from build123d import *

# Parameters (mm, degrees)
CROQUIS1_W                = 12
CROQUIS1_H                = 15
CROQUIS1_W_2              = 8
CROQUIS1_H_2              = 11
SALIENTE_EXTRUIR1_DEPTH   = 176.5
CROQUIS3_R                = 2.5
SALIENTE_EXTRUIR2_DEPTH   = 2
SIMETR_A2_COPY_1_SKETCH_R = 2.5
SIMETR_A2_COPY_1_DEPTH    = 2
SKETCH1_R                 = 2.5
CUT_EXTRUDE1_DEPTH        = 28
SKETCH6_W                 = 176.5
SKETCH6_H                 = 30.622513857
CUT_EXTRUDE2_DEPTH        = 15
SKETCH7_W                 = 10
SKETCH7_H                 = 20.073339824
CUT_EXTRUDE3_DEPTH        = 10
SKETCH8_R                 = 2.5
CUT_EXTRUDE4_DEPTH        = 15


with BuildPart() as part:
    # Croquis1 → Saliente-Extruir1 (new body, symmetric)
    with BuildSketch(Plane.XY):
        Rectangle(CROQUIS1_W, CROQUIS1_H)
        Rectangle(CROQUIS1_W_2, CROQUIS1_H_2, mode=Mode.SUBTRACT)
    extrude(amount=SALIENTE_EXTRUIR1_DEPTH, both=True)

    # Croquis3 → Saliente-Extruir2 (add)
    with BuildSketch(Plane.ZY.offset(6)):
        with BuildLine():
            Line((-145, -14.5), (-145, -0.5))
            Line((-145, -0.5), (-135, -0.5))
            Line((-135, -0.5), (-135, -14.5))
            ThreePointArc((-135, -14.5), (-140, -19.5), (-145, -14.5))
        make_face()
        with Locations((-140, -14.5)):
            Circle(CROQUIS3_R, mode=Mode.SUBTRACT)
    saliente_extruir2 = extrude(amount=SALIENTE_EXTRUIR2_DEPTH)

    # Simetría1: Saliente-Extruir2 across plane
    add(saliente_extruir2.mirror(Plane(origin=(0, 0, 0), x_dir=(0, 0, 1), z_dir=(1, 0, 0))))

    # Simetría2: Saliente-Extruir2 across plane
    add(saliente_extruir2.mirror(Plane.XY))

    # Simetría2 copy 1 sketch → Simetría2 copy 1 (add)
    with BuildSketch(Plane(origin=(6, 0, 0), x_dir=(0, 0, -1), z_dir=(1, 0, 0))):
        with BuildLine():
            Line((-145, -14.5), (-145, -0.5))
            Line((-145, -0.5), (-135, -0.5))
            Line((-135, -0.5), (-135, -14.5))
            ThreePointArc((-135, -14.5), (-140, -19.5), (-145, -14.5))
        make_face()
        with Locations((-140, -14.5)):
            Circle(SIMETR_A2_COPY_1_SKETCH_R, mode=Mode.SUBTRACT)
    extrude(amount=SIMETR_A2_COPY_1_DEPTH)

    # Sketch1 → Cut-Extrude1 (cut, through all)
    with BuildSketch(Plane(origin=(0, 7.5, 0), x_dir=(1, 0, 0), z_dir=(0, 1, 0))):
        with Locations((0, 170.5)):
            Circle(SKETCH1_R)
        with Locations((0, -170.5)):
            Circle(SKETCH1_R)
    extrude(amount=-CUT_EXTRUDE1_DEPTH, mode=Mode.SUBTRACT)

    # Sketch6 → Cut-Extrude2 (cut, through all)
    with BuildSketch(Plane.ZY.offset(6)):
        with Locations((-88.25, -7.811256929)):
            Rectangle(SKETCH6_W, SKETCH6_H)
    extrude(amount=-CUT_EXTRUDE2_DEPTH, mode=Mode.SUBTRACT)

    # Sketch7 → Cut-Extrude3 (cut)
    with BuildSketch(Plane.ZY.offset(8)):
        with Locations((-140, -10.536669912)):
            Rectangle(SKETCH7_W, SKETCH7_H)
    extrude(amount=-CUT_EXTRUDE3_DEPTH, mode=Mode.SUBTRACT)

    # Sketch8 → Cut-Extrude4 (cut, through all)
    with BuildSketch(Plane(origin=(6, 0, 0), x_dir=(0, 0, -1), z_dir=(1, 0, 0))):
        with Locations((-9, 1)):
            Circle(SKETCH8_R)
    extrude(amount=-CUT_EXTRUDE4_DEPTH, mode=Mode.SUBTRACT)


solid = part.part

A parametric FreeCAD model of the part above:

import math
import FreeCAD as App
import Part
import Sketcher

V = App.Vector


def add_polygon(sketch, points):
    """Adds a closed chain of lines whose ends are joined by coincident constraints."""
    first, n = sketch.GeometryCount, len(points)
    for a, b in zip(points, points[1:] + points[:1]):
        sketch.addGeometry(Part.LineSegment(App.Vector(*a, 0), App.Vector(*b, 0)), False)
    for i in range(n):
        sketch.addConstraint(Sketcher.Constraint("Coincident", first + i, 2, first + (i + 1) % n, 1))

doc = App.newDocument("Part")
params = doc.addObject("Spreadsheet::Sheet", "Params")
for row, (alias, value) in enumerate([
    ("sketch1_width", "12 mm"),
    ("sketch1_width2", "8 mm"),
    ("sketch1_height", "15 mm"),
    ("sketch1_height2", "11 mm"),
    ("pad1_length", "353 mm"),
    ("sketch2_diameter", "5 mm"),
    ("sketch2_radius", "5 mm"),
    ("sketch2_width", "14 mm"),
    ("pad2_length", "2 mm"),
    ("sketch3_diameter", "5 mm"),
    ("sketch3_radius", "5 mm"),
    ("sketch3_width", "14 mm"),
    ("pad3_length", "2 mm"),
    ("sketch4_diameter", "5 mm"),
    ("sketch5_height", "176.5 mm"),
    ("sketch6_height", "10 mm"),
    ("pocket3_length", "10 mm"),
    ("sketch7_diameter", "5 mm"),
], start=1):
    params.set(f"A{row}", alias)
    params.set(f"B{row}", "=" + value)
    params.setAlias(f"B{row}", alias)

body = doc.addObject("PartDesign::Body", "Body")
body.AllowCompound = True

# Sketch on XY plane
sketch1 = body.newObject("Sketcher::SketchObject", "Sketch")
sketch1.AttachmentSupport = (doc.getObject("XY_Plane"), [""])
sketch1.MapMode = "FlatFace"
add_polygon(sketch1, [(-6, 8), (-6, -8), (6, -8), (6, 8)])  # lines 0-3
add_polygon(sketch1, [(4, -6), (-4, -6), (-4, 6), (4, 6)])  # lines 4-7
sketch1.addConstraint([
    Sketcher.Constraint("Vertical", 0),
    Sketcher.Constraint("Horizontal", 1),
    Sketcher.Constraint("Vertical", 2),
    Sketcher.Constraint("Horizontal", 3),
    Sketcher.Constraint("Horizontal", 4),
    Sketcher.Constraint("Vertical", 5),
    Sketcher.Constraint("Horizontal", 6),
    Sketcher.Constraint("Vertical", 7),
    Sketcher.Constraint("Symmetric", 0, 2, 2, 2, -1, 1),
    Sketcher.Constraint("Symmetric", 4, 2, 6, 2, -1, 1),
    Sketcher.Constraint("DistanceX", 1, 1, 1, 2, 12.0),
    Sketcher.Constraint("DistanceX", 4, 2, 4, 1, 8.0),
    Sketcher.Constraint("DistanceY", 0, 2, 0, 1, 15.0),
    Sketcher.Constraint("DistanceY", 5, 1, 5, 2, 11.0),
])
sketch1.setExpression("Constraints[18]", "Params.sketch1_width")
sketch1.setExpression("Constraints[19]", "Params.sketch1_width2")
sketch1.setExpression("Constraints[20]", "Params.sketch1_height")
sketch1.setExpression("Constraints[21]", "Params.sketch1_height2")
pad1 = body.newObject("PartDesign::Pad", "Pad")
pad1.Profile = sketch1
pad1.setExpression("Length", "Params.pad1_length")
pad1.Midplane = True

# Sketch on YZ plane
sketch2 = body.newObject("Sketcher::SketchObject", "Sketch001")
sketch2.AttachmentSupport = (doc.getObject("YZ_Plane"), [""])
sketch2.MapMode = "FlatFace"
sketch2.AttachmentOffset = App.Placement(V(0, 0, -6), App.Rotation())
sketch2.addGeometry([
    Part.LineSegment(V(-0.5, -145, 0), V(-14.5, -145, 0)),  # 0
    Part.ArcOfCircle(Part.Circle(V(-14.5, -140, 0), V(0, 0, 1), 5), math.radians(90), math.radians(270)),  # 1
    Part.LineSegment(V(-14.5, -135, 0), V(-0.5, -135, 0)),  # 2
    Part.LineSegment(V(-0.5, -135, 0), V(-0.5, -145, 0)),  # 3
    Part.Circle(V(-14.5, -140, 0), V(0, 0, 1), 2.5),  # 4
], False)
sketch2.addConstraint([
    Sketcher.Constraint("Tangent", 0, 2, 1, 2),
    Sketcher.Constraint("Tangent", 1, 1, 2, 1),
    Sketcher.Constraint("Coincident", 2, 2, 3, 1),
    Sketcher.Constraint("Coincident", 3, 2, 0, 1),
    Sketcher.Constraint("Horizontal", 0),
    Sketcher.Constraint("Horizontal", 2),
    Sketcher.Constraint("Vertical", 3),
    Sketcher.Constraint("Coincident", 4, 3, 1, 3),
    Sketcher.Constraint("Diameter", 4, 5.0),
    Sketcher.Constraint("Radius", 1, 5.0),
    Sketcher.Constraint("DistanceX", 0, 2, 0, 1, 14.0),
    Sketcher.Constraint("DistanceY", 1, 3, -1, 1, 140.0),
    Sketcher.Constraint("DistanceX", 1, 3, -1, 1, 14.5),
])
sketch2.setExpression("Constraints[8]", "Params.sketch2_diameter")
sketch2.setExpression("Constraints[9]", "Params.sketch2_radius")
sketch2.setExpression("Constraints[10]", "Params.sketch2_width")
pad2 = body.newObject("PartDesign::Pad", "Pad001")
pad2.Profile = sketch2
pad2.setExpression("Length", "Params.pad2_length")
pad2.Reversed = True
doc.recompute()

mirrored = body.newObject("PartDesign::Mirrored", "Mirrored")
mirrored.Originals = [pad2]
mirrored.MirrorPlane = (doc.getObject("YZ_Plane"), [""])
body.Tip = mirrored
doc.recompute()

mirrored2 = body.newObject("PartDesign::Mirrored", "Mirrored001")
mirrored2.Originals = [pad2]
mirrored2.MirrorPlane = (doc.getObject("XY_Plane"), [""])
body.Tip = mirrored2

# Sketch on YZ plane
sketch3 = body.newObject("Sketcher::SketchObject", "Sketch002")
sketch3.AttachmentSupport = (doc.getObject("YZ_Plane"), [""])
sketch3.MapMode = "FlatFace"
sketch3.AttachmentOffset = App.Placement(V(0, 0, 6), App.Rotation())
sketch3.addGeometry([
    Part.LineSegment(V(-0.5, 145, 0), V(-14.5, 145, 0)),  # 0
    Part.ArcOfCircle(Part.Circle(V(-14.5, 140, 0), V(0, 0, 1), 5), math.radians(90), math.radians(270)),  # 1
    Part.LineSegment(V(-14.5, 135, 0), V(-0.5, 135, 0)),  # 2
    Part.LineSegment(V(-0.5, 135, 0), V(-0.5, 145, 0)),  # 3
    Part.Circle(V(-14.5, 140, 0), V(0, 0, 1), 2.5),  # 4
], False)
sketch3.addConstraint([
    Sketcher.Constraint("Tangent", 0, 2, 1, 1),
    Sketcher.Constraint("Tangent", 1, 2, 2, 1),
    Sketcher.Constraint("Coincident", 2, 2, 3, 1),
    Sketcher.Constraint("Coincident", 3, 2, 0, 1),
    Sketcher.Constraint("Horizontal", 0),
    Sketcher.Constraint("Horizontal", 2),
    Sketcher.Constraint("Vertical", 3),
    Sketcher.Constraint("Coincident", 4, 3, 1, 3),
    Sketcher.Constraint("Diameter", 4, 5.0),
    Sketcher.Constraint("Radius", 1, 5.0),
    Sketcher.Constraint("DistanceX", 0, 2, 0, 1, 14.0),
    Sketcher.Constraint("DistanceY", -1, 1, 1, 3, 140.0),
    Sketcher.Constraint("DistanceX", 1, 3, -1, 1, 14.5),
])
sketch3.setExpression("Constraints[8]", "Params.sketch3_diameter")
sketch3.setExpression("Constraints[9]", "Params.sketch3_radius")
sketch3.setExpression("Constraints[10]", "Params.sketch3_width")
pad3 = body.newObject("PartDesign::Pad", "Pad002")
pad3.Profile = sketch3
pad3.setExpression("Length", "Params.pad3_length")

# Sketch on XZ plane
sketch4 = body.newObject("Sketcher::SketchObject", "Sketch003")
sketch4.AttachmentSupport = (doc.getObject("XZ_Plane"), [""])
sketch4.MapMode = "FlatFace"
sketch4.AttachmentOffset = App.Placement(V(0, 0, -7.5), App.Rotation())
sketch4.addGeometry([
    Part.Circle(V(0, -170.5, 0), V(0, 0, 1), 2.5),
    Part.Circle(V(0, 170.5, 0), V(0, 0, 1), 2.5),
], False)
sketch4.addConstraint([
    Sketcher.Constraint("Equal", 0, 1),
    Sketcher.Constraint("Symmetric", 0, 3, 1, 3, -1, 1),
    Sketcher.Constraint("PointOnObject", 0, 3, -2),
    Sketcher.Constraint("Diameter", 0, 5.0),
    Sketcher.Constraint("DistanceY", 0, 3, 1, 3, 341.0),
])
sketch4.setExpression("Constraints[3]", "Params.sketch4_diameter")
pocket1 = body.newObject("PartDesign::Pocket", "Pocket")
pocket1.Profile = sketch4
pocket1.Type = "ThroughAll"
pocket1.Reversed = True

# Sketch on YZ plane
sketch5 = body.newObject("Sketcher::SketchObject", "Sketch004")
sketch5.AttachmentSupport = (doc.getObject("YZ_Plane"), [""])
sketch5.MapMode = "FlatFace"
sketch5.AttachmentOffset = App.Placement(V(0, 0, -6), App.Rotation())
add_polygon(sketch5, [(8, -176), (-23, -176), (-23, 0), (8, 0)])  # lines 0-3
sketch5.addConstraint([
    Sketcher.Constraint("Horizontal", 0),
    Sketcher.Constraint("Vertical", 1),
    Sketcher.Constraint("Horizontal", 2),
    Sketcher.Constraint("Vertical", 3),
    Sketcher.Constraint("PointOnObject", 1, 2, -1),
    Sketcher.Constraint("DistanceY", 1, 1, 1, 2, 176.5),
    Sketcher.Constraint("DistanceX", -1, 1, 2, 2, 7.5),
    Sketcher.Constraint("DistanceX", 0, 2, 0, 1, 30.622514),
])
sketch5.setExpression("Constraints[9]", "Params.sketch5_height")
pocket2 = body.newObject("PartDesign::Pocket", "Pocket001")
pocket2.Profile = sketch5
pocket2.Type = "ThroughAll"
pocket2.Reversed = True

# Sketch on YZ plane
sketch6 = body.newObject("Sketcher::SketchObject", "Sketch005")
sketch6.AttachmentSupport = (doc.getObject("YZ_Plane"), [""])
sketch6.MapMode = "FlatFace"
sketch6.AttachmentOffset = App.Placement(V(0, 0, -8), App.Rotation())
add_polygon(sketch6, [(0, -145), (-21, -145), (-21, -135), (0, -135)])  # lines 0-3
sketch6.addConstraint([
    Sketcher.Constraint("Horizontal", 0),
    Sketcher.Constraint("Vertical", 1),
    Sketcher.Constraint("Horizontal", 2),
    Sketcher.Constraint("Vertical", 3),
    Sketcher.Constraint("DistanceY", 1, 1, 1, 2, 10.0),
    Sketcher.Constraint("DistanceY", 0, 2, -1, 1, 145.0),
    Sketcher.Constraint("DistanceX", 2, 2, -1, 1, 0.5),
    Sketcher.Constraint("DistanceX", 0, 2, 0, 1, 20.07334),
])
sketch6.setExpression("Constraints[8]", "Params.sketch6_height")
pocket3 = body.newObject("PartDesign::Pocket", "Pocket002")
pocket3.Profile = sketch6
pocket3.setExpression("Length", "Params.pocket3_length")
pocket3.Reversed = True

# Sketch on YZ plane
sketch7 = body.newObject("Sketcher::SketchObject", "Sketch006")
sketch7.AttachmentSupport = (doc.getObject("YZ_Plane"), [""])
sketch7.MapMode = "FlatFace"
sketch7.AttachmentOffset = App.Placement(V(0, 0, 6), App.Rotation())
sketch7.addGeometry(Part.Circle(V(1, 9, 0), V(0, 0, 1), 2.5), False)
sketch7.addConstraint([
    Sketcher.Constraint("Diameter", 0, 5.0),
    Sketcher.Constraint("DistanceX", -1, 1, 0, 3, 1.0),
    Sketcher.Constraint("DistanceY", -1, 1, 0, 3, 9.0),
])
sketch7.setExpression("Constraints[0]", "Params.sketch7_diameter")
pocket4 = body.newObject("PartDesign::Pocket", "Pocket003")
pocket4.Profile = sketch7
pocket4.Type = "ThroughAll"

doc.recompute()
